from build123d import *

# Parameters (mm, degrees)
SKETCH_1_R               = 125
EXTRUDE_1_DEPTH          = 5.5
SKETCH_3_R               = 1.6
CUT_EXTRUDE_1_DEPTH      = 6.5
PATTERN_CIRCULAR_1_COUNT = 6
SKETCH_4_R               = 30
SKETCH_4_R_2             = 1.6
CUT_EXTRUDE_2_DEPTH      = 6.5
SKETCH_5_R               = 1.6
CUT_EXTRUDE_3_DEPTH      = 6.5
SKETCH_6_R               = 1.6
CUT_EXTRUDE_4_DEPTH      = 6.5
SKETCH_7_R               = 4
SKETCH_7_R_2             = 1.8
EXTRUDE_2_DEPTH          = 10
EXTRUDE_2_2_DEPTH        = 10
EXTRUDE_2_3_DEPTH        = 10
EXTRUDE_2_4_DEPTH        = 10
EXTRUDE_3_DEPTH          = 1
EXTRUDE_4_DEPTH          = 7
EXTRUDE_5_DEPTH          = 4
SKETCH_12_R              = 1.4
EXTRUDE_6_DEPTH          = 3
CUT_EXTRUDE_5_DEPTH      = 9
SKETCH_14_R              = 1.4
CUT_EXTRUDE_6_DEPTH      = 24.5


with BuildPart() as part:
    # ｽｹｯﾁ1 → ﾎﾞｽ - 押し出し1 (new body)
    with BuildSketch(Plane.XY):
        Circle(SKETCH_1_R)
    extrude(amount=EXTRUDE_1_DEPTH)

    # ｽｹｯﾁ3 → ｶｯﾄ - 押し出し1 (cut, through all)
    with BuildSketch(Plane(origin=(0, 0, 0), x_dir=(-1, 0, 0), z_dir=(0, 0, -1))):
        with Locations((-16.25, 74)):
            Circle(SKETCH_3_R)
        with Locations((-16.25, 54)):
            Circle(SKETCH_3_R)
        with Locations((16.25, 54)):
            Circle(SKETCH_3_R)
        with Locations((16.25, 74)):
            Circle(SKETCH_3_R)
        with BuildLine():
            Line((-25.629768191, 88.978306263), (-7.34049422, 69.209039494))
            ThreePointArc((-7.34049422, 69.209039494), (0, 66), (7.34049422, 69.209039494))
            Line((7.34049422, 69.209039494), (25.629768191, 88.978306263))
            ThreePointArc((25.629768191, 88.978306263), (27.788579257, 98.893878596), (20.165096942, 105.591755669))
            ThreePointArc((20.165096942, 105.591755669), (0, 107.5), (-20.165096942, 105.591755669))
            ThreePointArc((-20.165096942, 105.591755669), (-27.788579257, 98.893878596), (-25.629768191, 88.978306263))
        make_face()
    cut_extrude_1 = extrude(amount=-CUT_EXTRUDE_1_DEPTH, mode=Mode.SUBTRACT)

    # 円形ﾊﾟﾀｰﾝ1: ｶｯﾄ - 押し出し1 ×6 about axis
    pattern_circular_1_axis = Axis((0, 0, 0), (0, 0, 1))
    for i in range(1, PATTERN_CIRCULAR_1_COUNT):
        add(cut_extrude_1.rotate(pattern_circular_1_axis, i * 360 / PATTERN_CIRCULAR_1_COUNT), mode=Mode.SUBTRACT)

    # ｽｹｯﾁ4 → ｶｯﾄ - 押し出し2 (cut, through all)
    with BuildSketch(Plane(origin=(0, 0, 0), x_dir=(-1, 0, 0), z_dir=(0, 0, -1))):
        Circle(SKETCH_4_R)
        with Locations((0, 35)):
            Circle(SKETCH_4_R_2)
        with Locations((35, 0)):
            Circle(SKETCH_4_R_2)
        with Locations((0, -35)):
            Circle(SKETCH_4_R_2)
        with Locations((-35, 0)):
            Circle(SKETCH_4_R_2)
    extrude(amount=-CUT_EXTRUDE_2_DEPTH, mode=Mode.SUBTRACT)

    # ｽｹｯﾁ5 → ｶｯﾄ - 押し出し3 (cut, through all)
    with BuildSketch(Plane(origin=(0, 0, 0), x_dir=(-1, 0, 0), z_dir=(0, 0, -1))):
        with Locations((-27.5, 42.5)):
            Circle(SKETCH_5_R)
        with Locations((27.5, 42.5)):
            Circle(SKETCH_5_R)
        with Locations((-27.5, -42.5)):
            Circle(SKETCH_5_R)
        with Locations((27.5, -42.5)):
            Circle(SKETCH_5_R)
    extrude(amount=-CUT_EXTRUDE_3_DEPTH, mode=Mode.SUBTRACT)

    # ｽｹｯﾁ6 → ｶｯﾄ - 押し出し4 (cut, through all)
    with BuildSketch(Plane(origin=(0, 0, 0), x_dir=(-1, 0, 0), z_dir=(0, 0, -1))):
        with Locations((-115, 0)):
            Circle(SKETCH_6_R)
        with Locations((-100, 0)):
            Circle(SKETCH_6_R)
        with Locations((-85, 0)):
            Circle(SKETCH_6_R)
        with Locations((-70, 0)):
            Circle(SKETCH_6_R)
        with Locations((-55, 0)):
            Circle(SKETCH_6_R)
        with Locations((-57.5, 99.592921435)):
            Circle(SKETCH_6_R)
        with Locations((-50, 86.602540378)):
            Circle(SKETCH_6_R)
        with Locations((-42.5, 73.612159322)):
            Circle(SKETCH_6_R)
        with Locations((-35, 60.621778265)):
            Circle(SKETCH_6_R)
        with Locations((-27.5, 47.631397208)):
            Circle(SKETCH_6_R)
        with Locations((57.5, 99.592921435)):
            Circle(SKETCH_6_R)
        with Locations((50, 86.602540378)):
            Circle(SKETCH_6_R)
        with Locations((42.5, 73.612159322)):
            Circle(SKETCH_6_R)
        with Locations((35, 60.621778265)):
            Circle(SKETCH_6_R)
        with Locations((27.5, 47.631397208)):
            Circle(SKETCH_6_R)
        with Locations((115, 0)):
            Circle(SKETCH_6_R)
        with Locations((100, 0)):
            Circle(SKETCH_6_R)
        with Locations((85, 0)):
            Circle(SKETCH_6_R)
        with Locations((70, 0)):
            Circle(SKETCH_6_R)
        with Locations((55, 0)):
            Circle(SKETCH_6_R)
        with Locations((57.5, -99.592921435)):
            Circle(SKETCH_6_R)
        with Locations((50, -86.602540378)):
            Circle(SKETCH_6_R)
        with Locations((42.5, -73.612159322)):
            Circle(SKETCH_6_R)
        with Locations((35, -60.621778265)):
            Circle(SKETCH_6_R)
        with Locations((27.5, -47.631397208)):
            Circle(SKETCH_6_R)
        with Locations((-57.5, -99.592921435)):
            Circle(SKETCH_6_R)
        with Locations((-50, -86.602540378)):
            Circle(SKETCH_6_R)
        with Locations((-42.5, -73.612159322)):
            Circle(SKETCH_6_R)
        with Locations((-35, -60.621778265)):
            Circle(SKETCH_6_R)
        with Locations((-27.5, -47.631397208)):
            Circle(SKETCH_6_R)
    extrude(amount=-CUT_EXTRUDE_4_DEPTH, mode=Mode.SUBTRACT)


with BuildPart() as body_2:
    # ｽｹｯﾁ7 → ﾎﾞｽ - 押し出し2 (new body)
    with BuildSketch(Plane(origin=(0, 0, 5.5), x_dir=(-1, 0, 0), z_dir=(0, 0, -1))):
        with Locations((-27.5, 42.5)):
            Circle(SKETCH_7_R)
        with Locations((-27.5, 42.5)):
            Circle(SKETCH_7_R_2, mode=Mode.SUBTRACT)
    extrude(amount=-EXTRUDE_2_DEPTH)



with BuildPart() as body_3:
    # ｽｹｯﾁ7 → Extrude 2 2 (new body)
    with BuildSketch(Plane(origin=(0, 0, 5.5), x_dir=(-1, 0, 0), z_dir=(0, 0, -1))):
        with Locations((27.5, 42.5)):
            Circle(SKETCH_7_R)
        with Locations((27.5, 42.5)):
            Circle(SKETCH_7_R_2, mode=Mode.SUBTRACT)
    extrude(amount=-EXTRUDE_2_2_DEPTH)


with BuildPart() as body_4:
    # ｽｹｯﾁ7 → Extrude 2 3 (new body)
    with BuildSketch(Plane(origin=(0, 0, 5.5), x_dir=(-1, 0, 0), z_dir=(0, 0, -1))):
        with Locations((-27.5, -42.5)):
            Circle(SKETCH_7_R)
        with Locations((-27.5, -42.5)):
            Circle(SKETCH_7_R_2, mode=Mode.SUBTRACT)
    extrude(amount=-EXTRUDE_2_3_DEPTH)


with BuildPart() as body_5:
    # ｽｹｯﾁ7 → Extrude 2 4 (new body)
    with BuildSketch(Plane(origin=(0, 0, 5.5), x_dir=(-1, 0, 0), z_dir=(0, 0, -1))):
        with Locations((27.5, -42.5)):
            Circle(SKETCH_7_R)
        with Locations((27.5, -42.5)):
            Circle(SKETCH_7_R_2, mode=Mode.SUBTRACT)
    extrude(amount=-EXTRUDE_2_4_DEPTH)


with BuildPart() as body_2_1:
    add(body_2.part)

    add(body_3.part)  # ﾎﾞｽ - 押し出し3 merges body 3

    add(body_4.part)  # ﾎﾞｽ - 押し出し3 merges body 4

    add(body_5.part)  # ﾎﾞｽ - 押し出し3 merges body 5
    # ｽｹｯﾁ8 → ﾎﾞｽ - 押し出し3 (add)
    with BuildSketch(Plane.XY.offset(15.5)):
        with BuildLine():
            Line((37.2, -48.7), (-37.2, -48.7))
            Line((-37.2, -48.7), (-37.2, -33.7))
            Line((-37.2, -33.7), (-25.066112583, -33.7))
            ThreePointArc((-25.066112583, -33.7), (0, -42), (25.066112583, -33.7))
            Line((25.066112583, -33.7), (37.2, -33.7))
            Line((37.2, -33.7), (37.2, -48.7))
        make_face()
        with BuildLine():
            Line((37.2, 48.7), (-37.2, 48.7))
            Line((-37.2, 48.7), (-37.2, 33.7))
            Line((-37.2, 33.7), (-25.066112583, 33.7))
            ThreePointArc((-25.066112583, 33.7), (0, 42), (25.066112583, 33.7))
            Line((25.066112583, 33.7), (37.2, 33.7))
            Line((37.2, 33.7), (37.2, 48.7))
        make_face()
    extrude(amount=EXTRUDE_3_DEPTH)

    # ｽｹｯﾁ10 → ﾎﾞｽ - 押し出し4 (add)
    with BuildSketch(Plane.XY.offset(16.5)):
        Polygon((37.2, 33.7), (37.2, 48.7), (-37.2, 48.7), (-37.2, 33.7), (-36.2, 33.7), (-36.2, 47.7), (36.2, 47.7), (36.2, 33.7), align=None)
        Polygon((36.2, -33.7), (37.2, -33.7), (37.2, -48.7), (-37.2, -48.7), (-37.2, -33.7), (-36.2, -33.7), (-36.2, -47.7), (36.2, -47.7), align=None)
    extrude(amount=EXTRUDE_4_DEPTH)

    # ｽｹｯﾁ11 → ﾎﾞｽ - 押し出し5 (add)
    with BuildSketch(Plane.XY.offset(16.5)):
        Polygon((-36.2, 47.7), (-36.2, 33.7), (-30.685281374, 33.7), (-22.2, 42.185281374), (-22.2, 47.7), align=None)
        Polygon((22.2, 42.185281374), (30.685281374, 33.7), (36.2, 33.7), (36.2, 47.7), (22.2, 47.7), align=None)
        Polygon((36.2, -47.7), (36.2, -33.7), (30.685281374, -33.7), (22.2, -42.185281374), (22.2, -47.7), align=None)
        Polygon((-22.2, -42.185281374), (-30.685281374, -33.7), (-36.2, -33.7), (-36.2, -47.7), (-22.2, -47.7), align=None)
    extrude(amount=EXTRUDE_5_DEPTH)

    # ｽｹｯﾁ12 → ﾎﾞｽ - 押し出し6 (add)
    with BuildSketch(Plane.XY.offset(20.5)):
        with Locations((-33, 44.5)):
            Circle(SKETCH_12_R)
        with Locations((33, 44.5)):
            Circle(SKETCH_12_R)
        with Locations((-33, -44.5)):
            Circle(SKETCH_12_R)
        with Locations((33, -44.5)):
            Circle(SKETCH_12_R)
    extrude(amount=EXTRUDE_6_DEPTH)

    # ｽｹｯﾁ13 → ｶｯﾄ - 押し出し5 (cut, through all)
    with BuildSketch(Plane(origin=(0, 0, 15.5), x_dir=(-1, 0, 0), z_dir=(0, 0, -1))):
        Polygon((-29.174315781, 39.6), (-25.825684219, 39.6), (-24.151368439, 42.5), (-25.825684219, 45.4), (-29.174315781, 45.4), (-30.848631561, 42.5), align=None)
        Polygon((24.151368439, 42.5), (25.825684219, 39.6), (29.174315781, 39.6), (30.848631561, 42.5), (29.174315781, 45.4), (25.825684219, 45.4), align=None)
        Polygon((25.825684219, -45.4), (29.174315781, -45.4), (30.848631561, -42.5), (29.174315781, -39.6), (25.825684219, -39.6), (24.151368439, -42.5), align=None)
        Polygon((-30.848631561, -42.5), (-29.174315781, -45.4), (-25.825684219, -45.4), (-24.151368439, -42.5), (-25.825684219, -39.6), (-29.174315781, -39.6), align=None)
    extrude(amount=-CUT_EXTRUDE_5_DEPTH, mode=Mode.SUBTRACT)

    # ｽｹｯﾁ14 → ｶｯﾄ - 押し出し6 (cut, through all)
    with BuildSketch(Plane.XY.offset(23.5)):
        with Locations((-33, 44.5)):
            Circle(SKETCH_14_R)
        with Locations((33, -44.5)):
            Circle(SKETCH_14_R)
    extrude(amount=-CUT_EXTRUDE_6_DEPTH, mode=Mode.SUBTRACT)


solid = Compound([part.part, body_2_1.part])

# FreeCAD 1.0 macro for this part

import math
import FreeCAD as App
import Part
import Sketcher
Q = App.Units.Quantity

doc = App.newDocument("Part")
body = doc.addObject("PartDesign::Body", "Body")

# Sketch on XY plane
sketch1 = body.newObject("Sketcher::SketchObject", "Sketch")
sketch1.AttachmentSupport = (doc.getObject("XY_Plane"), [""])
sketch1.MapMode = "FlatFace"
sketch1.addGeometry(Part.Circle(App.Vector(0, 0, 0), App.Vector(0, 0, 1), 125), False)
sketch1.addConstraint(Sketcher.Constraint("Coincident", 0, 3, -1, 1))
sketch1.addConstraint(Sketcher.Constraint("Diameter", 0, Q("250 mm")))
pad1 = body.newObject("PartDesign::Pad", "Pad")
pad1.Profile = sketch1
pad1.Length = 5.5

# Sketch on XY plane
sketch2 = body.newObject("Sketcher::SketchObject", "Sketch001")
sketch2.AttachmentSupport = (doc.getObject("XY_Plane"), [""])
sketch2.MapMode = "FlatFace"
sketch2.addGeometry(Part.Circle(App.Vector(16.2, 74, 0), App.Vector(0, 0, 1), 1.6), False)
sketch2.addGeometry(Part.Circle(App.Vector(16.2, 54, 0), App.Vector(0, 0, 1), 1.6), False)
sketch2.addGeometry(Part.Circle(App.Vector(-16.2, 54, 0), App.Vector(0, 0, 1), 1.6), False)
sketch2.addGeometry(Part.Circle(App.Vector(-16.2, 74, 0), App.Vector(0, 0, 1), 1.6), False)
sketch2.addGeometry(Part.LineSegment(App.Vector(25.6, 89, 0), App.Vector(7.3, 69.2, 0)), False)
sketch2.addGeometry(Part.ArcOfCircle(Part.Circle(App.Vector(0, 76, 0), App.Vector(0, 0, 1), 10), math.radians(-137), math.radians(-43)), False)
sketch2.addGeometry(Part.LineSegment(App.Vector(-7.3, 69.2, 0), App.Vector(-25.6, 89, 0)), False)
sketch2.addGeometry(Part.ArcOfCircle(Part.Circle(App.Vector(-18.3, 95.8, 0), App.Vector(0, 0, 1), 10), math.radians(101), math.radians(223)), False)
sketch2.addGeometry(Part.ArcOfCircle(Part.Circle(App.Vector(0, 0, 0), App.Vector(0, 0, 1), 107.5), math.radians(79), math.radians(101)), False)
sketch2.addGeometry(Part.ArcOfCircle(Part.Circle(App.Vector(18.3, 95.8, 0), App.Vector(0, 0, 1), 10), math.radians(-43), math.radians(79)), False)
sketch2.addConstraint(Sketcher.Constraint("Tangent", 4, 2, 5, 2))
sketch2.addConstraint(Sketcher.Constraint("Tangent", 5, 1, 6, 1))
sketch2.addConstraint(Sketcher.Constraint("Tangent", 6, 2, 7, 2))
sketch2.addConstraint(Sketcher.Constraint("Tangent", 7, 1, 8, 2))
sketch2.addConstraint(Sketcher.Constraint("Tangent", 8, 1, 9, 2))
sketch2.addConstraint(Sketcher.Constraint("Tangent", 9, 1, 4, 1))
sketch2.addConstraint(Sketcher.Constraint("Coincident", 8, 3, -1, 1))
sketch2.addConstraint(Sketcher.Constraint("Equal", 0, 1))
sketch2.addConstraint(Sketcher.Constraint("Equal", 1, 2))
sketch2.addConstraint(Sketcher.Constraint("Equal", 2, 3))
sketch2.addConstraint(Sketcher.Constraint("Equal", 5, 7))
sketch2.addConstraint(Sketcher.Constraint("Equal", 7, 9))
sketch2.addConstraint(Sketcher.Constraint("Symmetric", 1, 3, 2, 3, -2))
sketch2.addConstraint(Sketcher.Constraint("Symmetric", 0, 3, 3, 3, -2))
sketch2.addConstraint(Sketcher.Constraint("Symmetric", 4, 2, 5, 1, -2))
sketch2.addConstraint(Sketcher.Constraint("Vertical", 0, 3, 1, 3))
sketch2.addConstraint(Sketcher.Constraint("Radius", 5, Q("10 mm")))
sketch2.addConstraint(Sketcher.Constraint("Diameter", 0, Q("3.2 mm")))
sketch2.addConstraint(Sketcher.Constraint("Radius", 8, Q("107.5 mm")))
sketch2.addConstraint(Sketcher.Constraint("DistanceY", -1, 1, 0, 3, Q("74 mm")))
sketch2.addConstraint(Sketcher.Constraint("DistanceY", -1, 1, 1, 3, Q("54 mm")))
sketch2.addConstraint(Sketcher.Constraint("DistanceY", -1, 1, 5, 3, Q("76 mm")))
sketch2.addConstraint(Sketcher.Constraint("DistanceX", 2, 3, 1, 3, Q("32.5 mm")))
sketch2.addConstraint(Sketcher.Constraint("DistanceY", -1, 1, 4, 2, Q("69.209039 mm")))
pocket1 = body.newObject("PartDesign::Pocket", "Pocket")
pocket1.Profile = sketch2
pocket1.Type = "ThroughAll"
pocket1.Reversed = True
doc.recompute()

polarpattern = body.newObject("PartDesign::PolarPattern", "PolarPattern")
polarpattern.Originals = [pocket1]
polarpattern.Axis = (doc.getObject("Z_Axis"), [""])
polarpattern.Angle = 360
polarpattern.Occurrences = 6
body.Tip = polarpattern

# Sketch on XY plane
sketch3 = body.newObject("Sketcher::SketchObject", "Sketch002")
sketch3.AttachmentSupport = (doc.getObject("XY_Plane"), [""])
sketch3.MapMode = "FlatFace"
sketch3.addGeometry(Part.Circle(App.Vector(0, 0, 0), App.Vector(0, 0, 1), 30), False)
sketch3.addGeometry(Part.Circle(App.Vector(0, 35, 0), App.Vector(0, 0, 1), 1.6), False)
sketch3.addGeometry(Part.Circle(App.Vector(-35, 0, 0), App.Vector(0, 0, 1), 1.6), False)
sketch3.addGeometry(Part.Circle(App.Vector(0, -35, 0), App.Vector(0, 0, 1), 1.6), False)
sketch3.addGeometry(Part.Circle(App.Vector(35, 0, 0), App.Vector(0, 0, 1), 1.6), False)
sketch3.addConstraint(Sketcher.Constraint("Coincident", 0, 3, -1, 1))
sketch3.addConstraint(Sketcher.Constraint("Equal", 1, 2))
sketch3.addConstraint(Sketcher.Constraint("Equal", 2, 3))
sketch3.addConstraint(Sketcher.Constraint("Equal", 3, 4))
sketch3.addConstraint(Sketcher.Constraint("Symmetric", 1, 3, 3, 3, -1, 1))
sketch3.addConstraint(Sketcher.Constraint("Symmetric", 2, 3, 4, 3, -1, 1))
sketch3.addConstraint(Sketcher.Constraint("PointOnObject", 1, 3, -2))
sketch3.addConstraint(Sketcher.Constraint("PointOnObject", 2, 3, -1))
sketch3.addConstraint(Sketcher.Constraint("Diameter", 0, Q("60 mm")))
sketch3.addConstraint(Sketcher.Constraint("Diameter", 1, Q("3.2 mm")))
sketch3.addConstraint(Sketcher.Constraint("DistanceY", -1, 1, 1, 3, Q("35 mm")))
sketch3.addConstraint(Sketcher.Constraint("DistanceX", 2, 3, -1, 1, Q("35 mm")))
pocket2 = body.newObject("PartDesign::Pocket", "Pocket001")
pocket2.Profile = sketch3
pocket2.Type = "ThroughAll"
pocket2.Reversed = True

# Sketch on XY plane
sketch4 = body.newObject("Sketcher::SketchObject", "Sketch003")
sketch4.AttachmentSupport = (doc.getObject("XY_Plane"), [""])
sketch4.MapMode = "FlatFace"
sketch4.addGeometry(Part.Circle(App.Vector(27.5, 42.5, 0), App.Vector(0, 0, 1), 1.6), False)
sketch4.addGeometry(Part.Circle(App.Vector(-27.5, 42.5, 0), App.Vector(0, 0, 1), 1.6), False)
sketch4.addGeometry(Part.Circle(App.Vector(27.5, -42.5, 0), App.Vector(0, 0, 1), 1.6), False)
sketch4.addGeometry(Part.Circle(App.Vector(-27.5, -42.5, 0), App.Vector(0, 0, 1), 1.6), False)
sketch4.addConstraint(Sketcher.Constraint("Equal", 0, 1))
sketch4.addConstraint(Sketcher.Constraint("Equal", 1, 2))
sketch4.addConstraint(Sketcher.Constraint("Equal", 2, 3))
sketch4.addConstraint(Sketcher.Constraint("Symmetric", 1, 3, 2, 3, -1, 1))
sketch4.addConstraint(Sketcher.Constraint("Symmetric", 0, 3, 3, 3, -1, 1))
sketch4.addConstraint(Sketcher.Constraint("Symmetric", 0, 3, 1, 3, -2))
sketch4.addConstraint(Sketcher.Constraint("Diameter", 0, Q("3.2 mm")))
sketch4.addConstraint(Sketcher.Constraint("DistanceX", 1, 3, 0, 3, Q("55 mm")))
sketch4.addConstraint(Sketcher.Constraint("DistanceY", 2, 3, 0, 3, Q("85 mm")))
pocket3 = body.newObject("PartDesign::Pocket", "Pocket002")
pocket3.Profile = sketch4
pocket3.Type = "ThroughAll"
pocket3.Reversed = True

# Sketch on XY plane
sketch5 = body.newObject("Sketcher::SketchObject", "Sketch004")
sketch5.AttachmentSupport = (doc.getObject("XY_Plane"), [""])
sketch5.MapMode = "FlatFace"
sketch5.addGeometry(Part.Circle(App.Vector(115, 0, 0), App.Vector(0, 0, 1), 1.6), False)
sketch5.addGeometry(Part.Circle(App.Vector(100, 0, 0), App.Vector(0, 0, 1), 1.6), False)
sketch5.addGeometry(Part.Circle(App.Vector(85, 0, 0), App.Vector(0, 0, 1), 1.6), False)
sketch5.addGeometry(Part.Circle(App.Vector(70, 0, 0), App.Vector(0, 0, 1), 1.6), False)
sketch5.addGeometry(Part.Circle(App.Vector(55, 0, 0), App.Vector(0, 0, 1), 1.6), False)
sketch5.addGeometry(Part.Circle(App.Vector(57.5, 99.6, 0), App.Vector(0, 0, 1), 1.6), False)
sketch5.addGeometry(Part.Circle(App.Vector(50, 86.6, 0), App.Vector(0, 0, 1), 1.6), False)
sketch5.addGeometry(Part.Circle(App.Vector(42.5, 73.6, 0), App.Vector(0, 0, 1), 1.6), False)
sketch5.addGeometry(Part.Circle(App.Vector(35, 60.6, 0), App.Vector(0, 0, 1), 1.6), False)
sketch5.addGeometry(Part.Circle(App.Vector(27.5, 47.6, 0), App.Vector(0, 0, 1), 1.6), False)
sketch5.addGeometry(Part.Circle(App.Vector(-57.5, 99.6, 0), App.Vector(0, 0, 1), 1.6), False)
sketch5.addGeometry(Part.Circle(App.Vector(-50, 86.6, 0), App.Vector(0, 0, 1), 1.6), False)
sketch5.addGeometry(Part.Circle(App.Vector(-42.5, 73.6, 0), App.Vector(0, 0, 1), 1.6), False)
sketch5.addGeometry(Part.Circle(App.Vector(-35, 60.6, 0), App.Vector(0, 0, 1), 1.6), False)
sketch5.addGeometry(Part.Circle(App.Vector(-27.5, 47.6, 0), App.Vector(0, 0, 1), 1.6), False)
sketch5.addGeometry(Part.Circle(App.Vector(-115, 0, 0), App.Vector(0, 0, 1), 1.6), False)
sketch5.addGeometry(Part.Circle(App.Vector(-100, 0, 0), App.Vector(0, 0, 1), 1.6), False)
sketch5.addGeometry(Part.Circle(App.Vector(-85, 0, 0), App.Vector(0, 0, 1), 1.6), False)
sketch5.addGeometry(Part.Circle(App.Vector(-70, 0, 0), App.Vector(0, 0, 1), 1.6), False)
sketch5.addGeometry(Part.Circle(App.Vector(-55, 0, 0), App.Vector(0, 0, 1), 1.6), False)
sketch5.addGeometry(Part.Circle(App.Vector(-57.5, -99.6, 0), App.Vector(0, 0, 1), 1.6), False)
sketch5.addGeometry(Part.Circle(App.Vector(-50, -86.6, 0), App.Vector(0, 0, 1), 1.6), False)
sketch5.addGeometry(Part.Circle(App.Vector(-42.5, -73.6, 0), App.Vector(0, 0, 1), 1.6), False)
sketch5.addGeometry(Part.Circle(App.Vector(-35, -60.6, 0), App.Vector(0, 0, 1), 1.6), False)
sketch5.addGeometry(Part.Circle(App.Vector(-27.5, -47.6, 0), App.Vector(0, 0, 1), 1.6), False)
sketch5.addGeometry(Part.Circle(App.Vector(57.5, -99.6, 0), App.Vector(0, 0, 1), 1.6), False)
sketch5.addGeometry(Part.Circle(App.Vector(50, -86.6, 0), App.Vector(0, 0, 1), 1.6), False)
sketch5.addGeometry(Part.Circle(App.Vector(42.5, -73.6, 0), App.Vector(0, 0, 1), 1.6), False)
sketch5.addGeometry(Part.Circle(App.Vector(35, -60.6, 0), App.Vector(0, 0, 1), 1.6), False)
sketch5.addGeometry(Part.Circle(App.Vector(27.5, -47.6, 0), App.Vector(0, 0, 1), 1.6), False)
sketch5.addConstraint(Sketcher.Constraint("Equal", 0, 1))
sketch5.addConstraint(Sketcher.Constraint("Equal", 1, 2))
sketch5.addConstraint(Sketcher.Constraint("Equal", 2, 3))
sketch5.addConstraint(Sketcher.Constraint("Equal", 3, 4))
sketch5.addConstraint(Sketcher.Constraint("Equal", 4, 5))
sketch5.addConstraint(Sketcher.Constraint("Equal", 5, 6))
sketch5.addConstraint(Sketcher.Constraint("Equal", 6, 7))
sketch5.addConstraint(Sketcher.Constraint("Equal", 7, 8))
sketch5.addConstraint(Sketcher.Constraint("Equal", 8, 9))
sketch5.addConstraint(Sketcher.Constraint("Equal", 9, 10))
sketch5.addConstraint(Sketcher.Constraint("Equal", 10, 11))
sketch5.addConstraint(Sketcher.Constraint("Equal", 11, 12))
sketch5.addConstraint(Sketcher.Constraint("Equal", 12, 13))
sketch5.addConstraint(Sketcher.Constraint("Equal", 13, 14))
sketch5.addConstraint(Sketcher.Constraint("Equal", 14, 15))
sketch5.addConstraint(Sketcher.Constraint("Equal", 15, 16))
sketch5.addConstraint(Sketcher.Constraint("Equal", 16, 17))
sketch5.addConstraint(Sketcher.Constraint("Equal", 17, 18))
sketch5.addConstraint(Sketcher.Constraint("Equal", 18, 19))
sketch5.addConstraint(Sketcher.Constraint("Equal", 19, 20))
sketch5.addConstraint(Sketcher.Constraint("Equal", 20, 21))
sketch5.addConstraint(Sketcher.Constraint("Equal", 21, 22))
sketch5.addConstraint(Sketcher.Constraint("Equal", 22, 23))
sketch5.addConstraint(Sketcher.Constraint("Equal", 23, 24))
sketch5.addConstraint(Sketcher.Constraint("Equal", 24, 25))
sketch5.addConstraint(Sketcher.Constraint("Equal", 25, 26))
sketch5.addConstraint(Sketcher.Constraint("Equal", 26, 27))
sketch5.addConstraint(Sketcher.Constraint("Equal", 27, 28))
sketch5.addConstraint(Sketcher.Constraint("Equal", 28, 29))
sketch5.addConstraint(Sketcher.Constraint("Symmetric", 0, 3, 15, 3, -1, 1))
sketch5.addConstraint(Sketcher.Constraint("Symmetric", 1, 3, 16, 3, -1, 1))
sketch5.addConstraint(Sketcher.Constraint("Symmetric", 2, 3, 17, 3, -1, 1))
sketch5.addConstraint(Sketcher.Constraint("Symmetric", 3, 3, 18, 3, -1, 1))
sketch5.addConstraint(Sketcher.Constraint("Symmetric", 4, 3, 19, 3, -1, 1))
sketch5.addConstraint(Sketcher.Constraint("Symmetric", 5, 3, 20, 3, -1, 1))
sketch5.addConstraint(Sketcher.Constraint("Symmetric", 6, 3, 21, 3, -1, 1))
sketch5.addConstraint(Sketcher.Constraint("Symmetric", 7, 3, 22, 3, -1, 1))
sketch5.addConstraint(Sketcher.Constraint("Symmetric", 8, 3, 23, 3, -1, 1))
sketch5.addConstraint(Sketcher.Constraint("Symmetric", 9, 3, 24, 3, -1, 1))
sketch5.addConstraint(Sketcher.Constraint("Symmetric", 10, 3, 25, 3, -1, 1))
sketch5.addConstraint(Sketcher.Constraint("Symmetric", 11, 3, 26, 3, -1, 1))
sketch5.addConstraint(Sketcher.Constraint("Symmetric", 12, 3, 27, 3, -1, 1))
sketch5.addConstraint(Sketcher.Constraint("Symmetric", 13, 3, 28, 3, -1, 1))
sketch5.addConstraint(Sketcher.Constraint("Symmetric", 14, 3, 29, 3, -1, 1))
sketch5.addConstraint(Sketcher.Constraint("Symmetric", 5, 3, 10, 3, -2))
sketch5.addConstraint(Sketcher.Constraint("Symmetric", 6, 3, 11, 3, -2))
sketch5.addConstraint(Sketcher.Constraint("Symmetric", 7, 3, 12, 3, -2))
sketch5.addConstraint(Sketcher.Constraint("Symmetric", 8, 3, 13, 3, -2))
sketch5.addConstraint(Sketcher.Constraint("Symmetric", 9, 3, 14, 3, -2))
sketch5.addConstraint(Sketcher.Constraint("PointOnObject", 0, 3, -1))
sketch5.addConstraint(Sketcher.Constraint("PointOnObject", 1, 3, -1))
sketch5.addConstraint(Sketcher.Constraint("PointOnObject", 2, 3, -1))
sketch5.addConstraint(Sketcher.Constraint("PointOnObject", 3, 3, -1))
sketch5.addConstraint(Sketcher.Constraint("PointOnObject", 4, 3, -1))
sketch5.addConstraint(Sketcher.Constraint("Diameter", 0, Q("3.2 mm")))
sketch5.addConstraint(Sketcher.Constraint("DistanceX", -1, 1, 0, 3, Q("115 mm")))
sketch5.addConstraint(Sketcher.Constraint("DistanceX", -1, 1, 1, 3, Q("100 mm")))
sketch5.addConstraint(Sketcher.Constraint("DistanceX", -1, 1, 2, 3, Q("85 mm")))
sketch5.addConstraint(Sketcher.Constraint("DistanceX", -1, 1, 3, 3, Q("70 mm")))
sketch5.addConstraint(Sketcher.Constraint("DistanceX", -1, 1, 4, 3, Q("55 mm")))
sketch5.addConstraint(Sketcher.Constraint("DistanceX", -1, 1, 6, 3, Q("50 mm")))
sketch5.addConstraint(Sketcher.Constraint("DistanceX", -1, 1, 8, 3, Q("35 mm")))
sketch5.addConstraint(Sketcher.Constraint("DistanceX", 7, 3, 5, 3, Q("15 mm")))
sketch5.addConstraint(Sketcher.Constraint("DistanceX", 9, 3, 7, 3, Q("15 mm")))
sketch5.addConstraint(Sketcher.Constraint("DistanceX", 10, 3, 9, 3, Q("85 mm")))
sketch5.addConstraint(Sketcher.Constraint("DistanceY", -1, 1, 5, 3, Q("99.592921 mm")))
sketch5.addConstraint(Sketcher.Constraint("DistanceY", -1, 1, 6, 3, Q("86.60254 mm")))
sketch5.addConstraint(Sketcher.Constraint("DistanceY", -1, 1, 7, 3, Q("73.612159 mm")))
sketch5.addConstraint(Sketcher.Constraint("DistanceY", -1, 1, 8, 3, Q("60.621778 mm")))
sketch5.addConstraint(Sketcher.Constraint("DistanceY", 9, 3, 8, 3, Q("12.990381 mm")))
pocket4 = body.newObject("PartDesign::Pocket", "Pocket003")
pocket4.Profile = sketch5
pocket4.Type = "ThroughAll"
pocket4.Reversed = True
body2 = doc.addObject("PartDesign::Body", "Body001")

# Sketch on XY plane
sketch6 = body2.newObject("Sketcher::SketchObject", "Sketch005")
sketch6.AttachmentSupport = (doc.getObject("XY_Plane001"), [""])
sketch6.MapMode = "FlatFace"
sketch6.AttachmentOffset = App.Placement(App.Vector(0, 0, 5.5), App.Rotation())
sketch6.addGeometry(Part.Circle(App.Vector(27.5, 42.5, 0), App.Vector(0, 0, 1), 4), False)
sketch6.addGeometry(Part.Circle(App.Vector(27.5, 42.5, 0), App.Vector(0, 0, 1), 1.8), False)
sketch6.addConstraint(Sketcher.Constraint("Coincident", 1, 3, 0, 3))
sketch6.addConstraint(Sketcher.Constraint("Diameter", 0, Q("8 mm")))
sketch6.addConstraint(Sketcher.Constraint("Diameter", 1, Q("3.6 mm")))
sketch6.addConstraint(Sketcher.Constraint("DistanceX", -1, 1, 0, 3, Q("27.5 mm")))
sketch6.addConstraint(Sketcher.Constraint("DistanceY", -1, 1, 0, 3, Q("42.5 mm")))
pad2 = body2.newObject("PartDesign::Pad", "Pad001")
pad2.Profile = sketch6
pad2.Length = 10
body3 = doc.addObject("PartDesign::Body", "Body002")

# Sketch on XY plane
sketch7 = body3.newObject("Sketcher::SketchObject", "Sketch006")
sketch7.AttachmentSupport = (doc.getObject("XY_Plane002"), [""])
sketch7.MapMode = "FlatFace"
sketch7.AttachmentOffset = App.Placement(App.Vector(0, 0, 5.5), App.Rotation())
sketch7.addGeometry(Part.Circle(App.Vector(-27.5, 42.5, 0), App.Vector(0, 0, 1), 4), False)
sketch7.addGeometry(Part.Circle(App.Vector(-27.5, 42.5, 0), App.Vector(0, 0, 1), 1.8), False)
sketch7.addConstraint(Sketcher.Constraint("Coincident", 1, 3, 0, 3))
sketch7.addConstraint(Sketcher.Constraint("Diameter", 0, Q("8 mm")))
sketch7.addConstraint(Sketcher.Constraint("Diameter", 1, Q("3.6 mm")))
sketch7.addConstraint(Sketcher.Constraint("DistanceX", 0, 3, -1, 1, Q("27.5 mm")))
sketch7.addConstraint(Sketcher.Constraint("DistanceY", -1, 1, 0, 3, Q("42.5 mm")))
pad3 = body3.newObject("PartDesign::Pad", "Pad002")
pad3.Profile = sketch7
pad3.Length = 10
body4 = doc.addObject("PartDesign::Body", "Body003")

# Sketch on XY plane
sketch8 = body4.newObject("Sketcher::SketchObject", "Sketch007")
sketch8.AttachmentSupport = (doc.getObject("XY_Plane003"), [""])
sketch8.MapMode = "FlatFace"
sketch8.AttachmentOffset = App.Placement(App.Vector(0, 0, 5.5), App.Rotation())
sketch8.addGeometry(Part.Circle(App.Vector(27.5, -42.5, 0), App.Vector(0, 0, 1), 4), False)
sketch8.addGeometry(Part.Circle(App.Vector(27.5, -42.5, 0), App.Vector(0, 0, 1), 1.8), False)
sketch8.addConstraint(Sketcher.Constraint("Coincident", 1, 3, 0, 3))
sketch8.addConstraint(Sketcher.Constraint("Diameter", 0, Q("8 mm")))
sketch8.addConstraint(Sketcher.Constraint("Diameter", 1, Q("3.6 mm")))
sketch8.addConstraint(Sketcher.Constraint("DistanceX", -1, 1, 0, 3, Q("27.5 mm")))
sketch8.addConstraint(Sketcher.Constraint("DistanceY", 0, 3, -1, 1, Q("42.5 mm")))
pad4 = body4.newObject("PartDesign::Pad", "Pad003")
pad4.Profile = sketch8
pad4.Length = 10
body5 = doc.addObject("PartDesign::Body", "Body004")

# Sketch on XY plane
sketch9 = body5.newObject("Sketcher::SketchObject", "Sketch008")
sketch9.AttachmentSupport = (doc.getObject("XY_Plane004"), [""])
sketch9.MapMode = "FlatFace"
sketch9.AttachmentOffset = App.Placement(App.Vector(0, 0, 5.5), App.Rotation())
sketch9.addGeometry(Part.Circle(App.Vector(-27.5, -42.5, 0), App.Vector(0, 0, 1), 4), False)
sketch9.addGeometry(Part.Circle(App.Vector(-27.5, -42.5, 0), App.Vector(0, 0, 1), 1.8), False)
sketch9.addConstraint(Sketcher.Constraint("Coincident", 1, 3, 0, 3))
sketch9.addConstraint(Sketcher.Constraint("Diameter", 0, Q("8 mm")))
sketch9.addConstraint(Sketcher.Constraint("Diameter", 1, Q("3.6 mm")))
sketch9.addConstraint(Sketcher.Constraint("DistanceX", 0, 3, -1, 1, Q("27.5 mm")))
sketch9.addConstraint(Sketcher.Constraint("DistanceY", 0, 3, -1, 1, Q("42.5 mm")))
pad5 = body5.newObject("PartDesign::Pad", "Pad004")
pad5.Profile = sketch9
pad5.Length = 10
body2.AllowCompound = True
doc.recompute()

boolean = body2.newObject("PartDesign::Boolean", "Boolean")
boolean.Type = "Fuse"
boolean.addObjects([body3])
doc.recompute()

boolean2 = body2.newObject("PartDesign::Boolean", "Boolean001")
boolean2.Type = "Fuse"
boolean2.addObjects([body4])
doc.recompute()

boolean3 = body2.newObject("PartDesign::Boolean", "Boolean002")
boolean3.Type = "Fuse"
boolean3.addObjects([body5])

# Sketch on XY plane
sketch10 = body2.newObject("Sketcher::SketchObject", "Sketch009")
sketch10.AttachmentSupport = (doc.getObject("XY_Plane001"), [""])
sketch10.MapMode = "FlatFace"
sketch10.AttachmentOffset = App.Placement(App.Vector(0, 0, 15.5), App.Rotation())
sketch10.addGeometry(Part.LineSegment(App.Vector(-37, -49, 0), App.Vector(37, -49, 0)), False)
sketch10.addGeometry(Part.LineSegment(App.Vector(37, -49, 0), App.Vector(37, -34, 0)), False)
sketch10.addGeometry(Part.LineSegment(App.Vector(37, -34, 0), App.Vector(25, -34, 0)), False)
sketch10.addGeometry(Part.ArcOfCircle(Part.Circle(App.Vector(0, 0, 0), App.Vector(0, 0, 1), 42), math.radians(-127), math.radians(-53)), False)
sketch10.addGeometry(Part.LineSegment(App.Vector(-25, -34, 0), App.Vector(-37, -34, 0)), False)
sketch10.addGeometry(Part.LineSegment(App.Vector(-37, -34, 0), App.Vector(-37, -49, 0)), False)
sketch10.addGeometry(Part.LineSegment(App.Vector(37, 49, 0), App.Vector(-37, 49, 0)), False)
sketch10.addGeometry(Part.LineSegment(App.Vector(-37, 49, 0), App.Vector(-37, 34, 0)), False)
sketch10.addGeometry(Part.LineSegment(App.Vector(-37, 34, 0), App.Vector(-25, 34, 0)), False)
sketch10.addGeometry(Part.ArcOfCircle(Part.Circle(App.Vector(0, 0, 0), App.Vector(0, 0, 1), 42), math.radians(53), math.radians(127)), False)
sketch10.addGeometry(Part.LineSegment(App.Vector(25, 34, 0), App.Vector(37, 34, 0)), False)
sketch10.addGeometry(Part.LineSegment(App.Vector(37, 34, 0), App.Vector(37, 49, 0)), False)
sketch10.addConstraint(Sketcher.Constraint("Coincident", 0, 2, 1, 1))
sketch10.addConstraint(Sketcher.Constraint("Coincident", 1, 2, 2, 1))
sketch10.addConstraint(Sketcher.Constraint("Coincident", 2, 2, 3, 2))
sketch10.addConstraint(Sketcher.Constraint("Coincident", 3, 1, 4, 1))
sketch10.addConstraint(Sketcher.Constraint("Coincident", 4, 2, 5, 1))
sketch10.addConstraint(Sketcher.Constraint("Coincident", 5, 2, 0, 1))
sketch10.addConstraint(Sketcher.Constraint("Coincident", 6, 2, 7, 1))
sketch10.addConstraint(Sketcher.Constraint("Coincident", 7, 2, 8, 1))
sketch10.addConstraint(Sketcher.Constraint("Coincident", 8, 2, 9, 2))
sketch10.addConstraint(Sketcher.Constraint("Coincident", 9, 1, 10, 1))
sketch10.addConstraint(Sketcher.Constraint("Coincident", 10, 2, 11, 1))
sketch10.addConstraint(Sketcher.Constraint("Coincident", 11, 2, 6, 1))
sketch10.addConstraint(Sketcher.Constraint("Horizontal", 0))
sketch10.addConstraint(Sketcher.Constraint("Vertical", 1))
sketch10.addConstraint(Sketcher.Constraint("Horizontal", 2))
sketch10.addConstraint(Sketcher.Constraint("Horizontal", 4))
sketch10.addConstraint(Sketcher.Constraint("Vertical", 5))
sketch10.addConstraint(Sketcher.Constraint("Horizontal", 6))
sketch10.addConstraint(Sketcher.Constraint("Vertical", 7))
sketch10.addConstraint(Sketcher.Constraint("Horizontal", 8))
sketch10.addConstraint(Sketcher.Constraint("Horizontal", 10))
sketch10.addConstraint(Sketcher.Constraint("Vertical", 11))
sketch10.addConstraint(Sketcher.Constraint("Coincident", 3, 3, -1, 1))
sketch10.addConstraint(Sketcher.Constraint("Coincident", 9, 3, -1, 1))
sketch10.addConstraint(Sketcher.Constraint("Equal", 3, 9))
sketch10.addConstraint(Sketcher.Constraint("Symmetric", 0, 2, 6, 2, -1, 1))
sketch10.addConstraint(Sketcher.Constraint("Symmetric", 4, 2, 10, 2, -1, 1))
sketch10.addConstraint(Sketcher.Constraint("Symmetric", 1, 2, 4, 2, -2))
sketch10.addConstraint(Sketcher.Constraint("Horizontal", 8, 2, 9, 1))
sketch10.addConstraint(Sketcher.Constraint("Radius", 3, Q("42 mm")))
sketch10.addConstraint(Sketcher.Constraint("DistanceY", 1, 1, 1, 2, Q("15 mm")))
sketch10.addConstraint(Sketcher.Constraint("DistanceX", 0, 1, 0, 2, Q("74.4 mm")))
sketch10.addConstraint(Sketcher.Constraint("DistanceY", 0, 2, -1, 1, Q("48.7 mm")))
pad6 = body2.newObject("PartDesign::Pad", "Pad005")
pad6.Profile = sketch10
pad6.Length = 1

# Sketch on XY plane
sketch11 = body2.newObject("Sketcher::SketchObject", "Sketch010")
sketch11.AttachmentSupport = (doc.getObject("XY_Plane001"), [""])
sketch11.MapMode = "FlatFace"
sketch11.AttachmentOffset = App.Placement(App.Vector(0, 0, 16.5), App.Rotation())
sketch11.addGeometry(Part.LineSegment(App.Vector(37.2, 33.7, 0), App.Vector(37.2, 48.7, 0)), False)
sketch11.addGeometry(Part.LineSegment(App.Vector(37.2, 48.7, 0), App.Vector(-37.2, 48.7, 0)), False)
sketch11.addGeometry(Part.LineSegment(App.Vector(-37.2, 48.7, 0), App.Vector(-37.2, 33.7, 0)), False)
sketch11.addGeometry(Part.LineSegment(App.Vector(-37.2, 33.7, 0), App.Vector(-36.2, 33.7, 0)), False)
sketch11.addGeometry(Part.LineSegment(App.Vector(-36.2, 33.7, 0), App.Vector(-36.2, 47.7, 0)), False)
sketch11.addGeometry(Part.LineSegment(App.Vector(-36.2, 47.7, 0), App.Vector(36.2, 47.7, 0)), False)
sketch11.addGeometry(Part.LineSegment(App.Vector(36.2, 47.7, 0), App.Vector(36.2, 33.7, 0)), False)
sketch11.addGeometry(Part.LineSegment(App.Vector(36.2, 33.7, 0), App.Vector(37.2, 33.7, 0)), False)
sketch11.addGeometry(Part.LineSegment(App.Vector(37.2, -33.7, 0), App.Vector(36.2, -33.7, 0)), False)
sketch11.addGeometry(Part.LineSegment(App.Vector(36.2, -33.7, 0), App.Vector(36.2, -47.7, 0)), False)
sketch11.addGeometry(Part.LineSegment(App.Vector(36.2, -47.7, 0), App.Vector(-36.2, -47.7, 0)), False)
sketch11.addGeometry(Part.LineSegment(App.Vector(-36.2, -47.7, 0), App.Vector(-36.2, -33.7, 0)), False)
sketch11.addGeometry(Part.LineSegment(App.Vector(-36.2, -33.7, 0), App.Vector(-37.2, -33.7, 0)), False)
sketch11.addGeometry(Part.LineSegment(App.Vector(-37.2, -33.7, 0), App.Vector(-37.2, -48.7, 0)), False)
sketch11.addGeometry(Part.LineSegment(App.Vector(-37.2, -48.7, 0), App.Vector(37.2, -48.7, 0)), False)
sketch11.addGeometry(Part.LineSegment(App.Vector(37.2, -48.7, 0), App.Vector(37.2, -33.7, 0)), False)
sketch11.addConstraint(Sketcher.Constraint("Coincident", 0, 2, 1, 1))
sketch11.addConstraint(Sketcher.Constraint("Coincident", 1, 2, 2, 1))
sketch11.addConstraint(Sketcher.Constraint("Coincident", 2, 2, 3, 1))
sketch11.addConstraint(Sketcher.Constraint("Coincident", 3, 2, 4, 1))
sketch11.addConstraint(Sketcher.Constraint("Coincident", 4, 2, 5, 1))
sketch11.addConstraint(Sketcher.Constraint("Coincident", 5, 2, 6, 1))
sketch11.addConstraint(Sketcher.Constraint("Coincident", 6, 2, 7, 1))
sketch11.addConstraint(Sketcher.Constraint("Coincident", 7, 2, 0, 1))
sketch11.addConstraint(Sketcher.Constraint("Coincident", 8, 2, 9, 1))
sketch11.addConstraint(Sketcher.Constraint("Coincident", 9, 2, 10, 1))
sketch11.addConstraint(Sketcher.Constraint("Coincident", 10, 2, 11, 1))
sketch11.addConstraint(Sketcher.Constraint("Coincident", 11, 2, 12, 1))
sketch11.addConstraint(Sketcher.Constraint("Coincident", 12, 2, 13, 1))
sketch11.addConstraint(Sketcher.Constraint("Coincident", 13, 2, 14, 1))
sketch11.addConstraint(Sketcher.Constraint("Coincident", 14, 2, 15, 1))
sketch11.addConstraint(Sketcher.Constraint("Coincident", 15, 2, 8, 1))
sketch11.addConstraint(Sketcher.Constraint("Vertical", 0))
sketch11.addConstraint(Sketcher.Constraint("Horizontal", 1))
sketch11.addConstraint(Sketcher.Constraint("Vertical", 2))
sketch11.addConstraint(Sketcher.Constraint("Horizontal", 3))
sketch11.addConstraint(Sketcher.Constraint("Vertical", 4))
sketch11.addConstraint(Sketcher.Constraint("Horizontal", 5))
sketch11.addConstraint(Sketcher.Constraint("Vertical", 6))
sketch11.addConstraint(Sketcher.Constraint("Horizontal", 7))
sketch11.addConstraint(Sketcher.Constraint("Horizontal", 8))
sketch11.addConstraint(Sketcher.Constraint("Vertical", 9))
sketch11.addConstraint(Sketcher.Constraint("Horizontal", 10))
sketch11.addConstraint(Sketcher.Constraint("Vertical", 11))
sketch11.addConstraint(Sketcher.Constraint("Horizontal", 12))
sketch11.addConstraint(Sketcher.Constraint("Vertical", 13))
sketch11.addConstraint(Sketcher.Constraint("Horizontal", 14))
sketch11.addConstraint(Sketcher.Constraint("Vertical", 15))
sketch11.addConstraint(Sketcher.Constraint("Symmetric", 3, 2, 8, 2, -1, 1))
sketch11.addConstraint(Sketcher.Constraint("Symmetric", 5, 2, 10, 2, -1, 1))
sketch11.addConstraint(Sketcher.Constraint("Symmetric", 7, 2, 12, 2, -1, 1))
sketch11.addConstraint(Sketcher.Constraint("Symmetric", 1, 2, 14, 2, -1, 1))
sketch11.addConstraint(Sketcher.Constraint("Symmetric", 3, 2, 6, 2, -2))
sketch11.addConstraint(Sketcher.Constraint("Vertical", 2, 2, 12, 2))
sketch11.addConstraint(Sketcher.Constraint("DistanceX", 3, 1, 3, 2, Q("1 mm")))
sketch11.addConstraint(Sketcher.Constraint("DistanceY", 0, 1, 0, 2, Q("15 mm")))
sketch11.addConstraint(Sketcher.Constraint("DistanceY", 4, 1, 4, 2, Q("14 mm")))
sketch11.addConstraint(Sketcher.Constraint("DistanceX", 1, 2, 1, 1, Q("74.4 mm")))
sketch11.addConstraint(Sketcher.Constraint("DistanceY", -1, 1, 0, 2, Q("48.7 mm")))
pad7 = body2.newObject("PartDesign::Pad", "Pad006")
pad7.Profile = sketch11
pad7.Length = 7

# Sketch on XY plane
sketch12 = body2.newObject("Sketcher::SketchObject", "Sketch011")
sketch12.AttachmentSupport = (doc.getObject("XY_Plane001"), [""])
sketch12.MapMode = "FlatFace"
sketch12.AttachmentOffset = App.Placement(App.Vector(0, 0, 16.5), App.Rotation())
sketch12.addGeometry(Part.LineSegment(App.Vector(-36, 48, 0), App.Vector(-36, 34, 0)), False)
sketch12.addGeometry(Part.LineSegment(App.Vector(-36, 34, 0), App.Vector(-31, 34, 0)), False)
sketch12.addGeometry(Part.LineSegment(App.Vector(-31, 34, 0), App.Vector(-22, 42, 0)), False)
sketch12.addGeometry(Part.LineSegment(App.Vector(-22, 42, 0), App.Vector(-22, 48, 0)), False)
sketch12.addGeometry(Part.LineSegment(App.Vector(-22, 48, 0), App.Vector(-36, 48, 0)), False)
sketch12.addGeometry(Part.LineSegment(App.Vector(22, 42, 0), App.Vector(31, 34, 0)), False)
sketch12.addGeometry(Part.LineSegment(App.Vector(31, 34, 0), App.Vector(36, 34, 0)), False)
sketch12.addGeometry(Part.LineSegment(App.Vector(36, 34, 0), App.Vector(36, 48, 0)), False)
sketch12.addGeometry(Part.LineSegment(App.Vector(36, 48, 0), App.Vector(22, 48, 0)), False)
sketch12.addGeometry(Part.LineSegment(App.Vector(22, 48, 0), App.Vector(22, 42, 0)), False)
sketch12.addGeometry(Part.LineSegment(App.Vector(36, -48, 0), App.Vector(36, -34, 0)), False)
sketch12.addGeometry(Part.LineSegment(App.Vector(36, -34, 0), App.Vector(31, -34, 0)), False)
sketch12.addGeometry(Part.LineSegment(App.Vector(31, -34, 0), App.Vector(22, -42, 0)), False)
sketch12.addGeometry(Part.LineSegment(App.Vector(22, -42, 0), App.Vector(22, -48, 0)), False)
sketch12.addGeometry(Part.LineSegment(App.Vector(22, -48, 0), App.Vector(36, -48, 0)), False)
sketch12.addGeometry(Part.LineSegment(App.Vector(-22, -42, 0), App.Vector(-31, -34, 0)), False)
sketch12.addGeometry(Part.LineSegment(App.Vector(-31, -34, 0), App.Vector(-36, -34, 0)), False)
sketch12.addGeometry(Part.LineSegment(App.Vector(-36, -34, 0), App.Vector(-36, -48, 0)), False)
sketch12.addGeometry(Part.LineSegment(App.Vector(-36, -48, 0), App.Vector(-22, -48, 0)), False)
sketch12.addGeometry(Part.LineSegment(App.Vector(-22, -48, 0), App.Vector(-22, -42, 0)), False)
sketch12.addConstraint(Sketcher.Constraint("Coincident", 0, 2, 1, 1))
sketch12.addConstraint(Sketcher.Constraint("Coincident", 1, 2, 2, 1))
sketch12.addConstraint(Sketcher.Constraint("Coincident", 2, 2, 3, 1))
sketch12.addConstraint(Sketcher.Constraint("Coincident", 3, 2, 4, 1))
sketch12.addConstraint(Sketcher.Constraint("Coincident", 4, 2, 0, 1))
sketch12.addConstraint(Sketcher.Constraint("Coincident", 5, 2, 6, 1))
sketch12.addConstraint(Sketcher.Constraint("Coincident", 6, 2, 7, 1))
sketch12.addConstraint(Sketcher.Constraint("Coincident", 7, 2, 8, 1))
sketch12.addConstraint(Sketcher.Constraint("Coincident", 8, 2, 9, 1))
sketch12.addConstraint(Sketcher.Constraint("Coincident", 9, 2, 5, 1))
sketch12.addConstraint(Sketcher.Constraint("Coincident", 10, 2, 11, 1))
sketch12.addConstraint(Sketcher.Constraint("Coincident", 11, 2, 12, 1))
sketch12.addConstraint(Sketcher.Constraint("Coincident", 12, 2, 13, 1))
sketch12.addConstraint(Sketcher.Constraint("Coincident", 13, 2, 14, 1))
sketch12.addConstraint(Sketcher.Constraint("Coincident", 14, 2, 10, 1))
sketch12.addConstraint(Sketcher.Constraint("Coincident", 15, 2, 16, 1))
sketch12.addConstraint(Sketcher.Constraint("Coincident", 16, 2, 17, 1))
sketch12.addConstraint(Sketcher.Constraint("Coincident", 17, 2, 18, 1))
sketch12.addConstraint(Sketcher.Constraint("Coincident", 18, 2, 19, 1))
sketch12.addConstraint(Sketcher.Constraint("Coincident", 19, 2, 15, 1))
sketch12.addConstraint(Sketcher.Constraint("Vertical", 0))
sketch12.addConstraint(Sketcher.Constraint("Horizontal", 1))
sketch12.addConstraint(Sketcher.Constraint("Vertical", 3))
sketch12.addConstraint(Sketcher.Constraint("Horizontal", 4))
sketch12.addConstraint(Sketcher.Constraint("Horizontal", 6))
sketch12.addConstraint(Sketcher.Constraint("Vertical", 7))
sketch12.addConstraint(Sketcher.Constraint("Horizontal", 8))
sketch12.addConstraint(Sketcher.Constraint("Vertical", 9))
sketch12.addConstraint(Sketcher.Constraint("Vertical", 10))
sketch12.addConstraint(Sketcher.Constraint("Horizontal", 11))
sketch12.addConstraint(Sketcher.Constraint("Vertical", 13))
sketch12.addConstraint(Sketcher.Constraint("Horizontal", 14))
sketch12.addConstraint(Sketcher.Constraint("Horizontal", 16))
sketch12.addConstraint(Sketcher.Constraint("Vertical", 17))
sketch12.addConstraint(Sketcher.Constraint("Horizontal", 18))
sketch12.addConstraint(Sketcher.Constraint("Vertical", 19))
sketch12.addConstraint(Sketcher.Constraint("Symmetric", 0, 2, 10, 2, -1, 1))
sketch12.addConstraint(Sketcher.Constraint("Symmetric", 2, 2, 12, 2, -1, 1))
sketch12.addConstraint(Sketcher.Constraint("Symmetric", 5, 2, 15, 2, -1, 1))
sketch12.addConstraint(Sketcher.Constraint("Symmetric", 7, 2, 17, 2, -1, 1))
sketch12.addConstraint(Sketcher.Constraint("Symmetric", 9, 2, 19, 2, -1, 1))
sketch12.addConstraint(Sketcher.Constraint("Symmetric", 1, 2, 5, 2, -2))
sketch12.addConstraint(Sketcher.Constraint("Symmetric", 4, 2, 7, 2, -2))
sketch12.addConstraint(Sketcher.Constraint("Symmetric", 2, 2, 9, 2, -2))
sketch12.addConstraint(Sketcher.Constraint("Perpendicular", 2, 5))
sketch12.addConstraint(Sketcher.Constraint("Perpendicular", 5, 12))
sketch12.addConstraint(Sketcher.Constraint("Horizontal", 14, 2, 17, 2))
sketch12.addConstraint(Sketcher.Constraint("Equal", 18, 0))
sketch12.addConstraint(Sketcher.Constraint("DistanceX", 4, 2, 4, 1, Q("14 mm")))
sketch12.addConstraint(Sketcher.Constraint("Distance", 2, Q("12 mm")))
sketch12.addConstraint(Sketcher.Constraint("DistanceX", 0, 2, -1, 1, Q("36.2 mm")))
sketch12.addConstraint(Sketcher.Constraint("DistanceY", -1, 1, 0, 2, Q("33.7 mm")))
pad8 = body2.newObject("PartDesign::Pad", "Pad007")
pad8.Profile = sketch12
pad8.Length = 4

# Sketch on XY plane
sketch13 = body2.newObject("Sketcher::SketchObject", "Sketch012")
sketch13.AttachmentSupport = (doc.getObject("XY_Plane001"), [""])
sketch13.MapMode = "FlatFace"
sketch13.AttachmentOffset = App.Placement(App.Vector(0, 0, 20.5), App.Rotation())
sketch13.addGeometry(Part.Circle(App.Vector(-33, 44.5, 0), App.Vector(0, 0, 1), 1.4), False)
sketch13.addGeometry(Part.Circle(App.Vector(33, 44.5, 0), App.Vector(0, 0, 1), 1.4), False)
sketch13.addGeometry(Part.Circle(App.Vector(-33, -44.5, 0), App.Vector(0, 0, 1), 1.4), False)
sketch13.addGeometry(Part.Circle(App.Vector(33, -44.5, 0), App.Vector(0, 0, 1), 1.4), False)
sketch13.addConstraint(Sketcher.Constraint("Equal", 0, 1))
sketch13.addConstraint(Sketcher.Constraint("Equal", 1, 2))
sketch13.addConstraint(Sketcher.Constraint("Equal", 2, 3))
sketch13.addConstraint(Sketcher.Constraint("Symmetric", 1, 3, 2, 3, -1, 1))
sketch13.addConstraint(Sketcher.Constraint("Symmetric", 0, 3, 3, 3, -1, 1))
sketch13.addConstraint(Sketcher.Constraint("Symmetric", 0, 3, 1, 3, -2))
sketch13.addConstraint(Sketcher.Constraint("Diameter", 0, Q("2.8 mm")))
sketch13.addConstraint(Sketcher.Constraint("DistanceX", 0, 3, -1, 1, Q("33 mm")))
sketch13.addConstraint(Sketcher.Constraint("DistanceY", 2, 3, 0, 3, Q("89 mm")))
pad9 = body2.newObject("PartDesign::Pad", "Pad008")
pad9.Profile = sketch13
pad9.Length = 3

# Sketch on XY plane
sketch14 = body2.newObject("Sketcher::SketchObject", "Sketch013")
sketch14.AttachmentSupport = (doc.getObject("XY_Plane001"), [""])
sketch14.MapMode = "FlatFace"
sketch14.AttachmentOffset = App.Placement(App.Vector(0, 0, 15.5), App.Rotation())
sketch14.addGeometry(Part.LineSegment(App.Vector(29.2, 39.6, 0), App.Vector(25.8, 39.6, 0)), False)
sketch14.addGeometry(Part.LineSegment(App.Vector(25.8, 39.6, 0), App.Vector(24.2, 42.5, 0)), False)
sketch14.addGeometry(Part.LineSegment(App.Vector(24.2, 42.5, 0), App.Vector(25.8, 45.4, 0)), False)
sketch14.addGeometry(Part.LineSegment(App.Vector(25.8, 45.4, 0), App.Vector(29.2, 45.4, 0)), False)
sketch14.addGeometry(Part.LineSegment(App.Vector(29.2, 45.4, 0), App.Vector(30.8, 42.5, 0)), False)
sketch14.addGeometry(Part.LineSegment(App.Vector(30.8, 42.5, 0), App.Vector(29.2, 39.6, 0)), False)
sketch14.addGeometry(Part.LineSegment(App.Vector(-24.2, 42.5, 0), App.Vector(-25.8, 39.6, 0)), False)
sketch14.addGeometry(Part.LineSegment(App.Vector(-25.8, 39.6, 0), App.Vector(-29.2, 39.6, 0)), False)
sketch14.addGeometry(Part.LineSegment(App.Vector(-29.2, 39.6, 0), App.Vector(-30.8, 42.5, 0)), False)
sketch14.addGeometry(Part.LineSegment(App.Vector(-30.8, 42.5, 0), App.Vector(-29.2, 45.4, 0)), False)
sketch14.addGeometry(Part.LineSegment(App.Vector(-29.2, 45.4, 0), App.Vector(-25.8, 45.4, 0)), False)
sketch14.addGeometry(Part.LineSegment(App.Vector(-25.8, 45.4, 0), App.Vector(-24.2, 42.5, 0)), False)
sketch14.addGeometry(Part.LineSegment(App.Vector(-25.8, -45.4, 0), App.Vector(-29.2, -45.4, 0)), False)
sketch14.addGeometry(Part.LineSegment(App.Vector(-29.2, -45.4, 0), App.Vector(-30.8, -42.5, 0)), False)
sketch14.addGeometry(Part.LineSegment(App.Vector(-30.8, -42.5, 0), App.Vector(-29.2, -39.6, 0)), False)
sketch14.addGeometry(Part.LineSegment(App.Vector(-29.2, -39.6, 0), App.Vector(-25.8, -39.6, 0)), False)
sketch14.addGeometry(Part.LineSegment(App.Vector(-25.8, -39.6, 0), App.Vector(-24.2, -42.5, 0)), False)
sketch14.addGeometry(Part.LineSegment(App.Vector(-24.2, -42.5, 0), App.Vector(-25.8, -45.4, 0)), False)
sketch14.addGeometry(Part.LineSegment(App.Vector(30.8, -42.5, 0), App.Vector(29.2, -45.4, 0)), False)
sketch14.addGeometry(Part.LineSegment(App.Vector(29.2, -45.4, 0), App.Vector(25.8, -45.4, 0)), False)
sketch14.addGeometry(Part.LineSegment(App.Vector(25.8, -45.4, 0), App.Vector(24.2, -42.5, 0)), False)
sketch14.addGeometry(Part.LineSegment(App.Vector(24.2, -42.5, 0), App.Vector(25.8, -39.6, 0)), False)
sketch14.addGeometry(Part.LineSegment(App.Vector(25.8, -39.6, 0), App.Vector(29.2, -39.6, 0)), False)
sketch14.addGeometry(Part.LineSegment(App.Vector(29.2, -39.6, 0), App.Vector(30.8, -42.5, 0)), False)
sketch14.addConstraint(Sketcher.Constraint("Coincident", 0, 2, 1, 1))
sketch14.addConstraint(Sketcher.Constraint("Coincident", 1, 2, 2, 1))
sketch14.addConstraint(Sketcher.Constraint("Coincident", 2, 2, 3, 1))
sketch14.addConstraint(Sketcher.Constraint("Coincident", 3, 2, 4, 1))
sketch14.addConstraint(Sketcher.Constraint("Coincident", 4, 2, 5, 1))
sketch14.addConstraint(Sketcher.Constraint("Coincident", 5, 2, 0, 1))
sketch14.addConstraint(Sketcher.Constraint("Coincident", 6, 2, 7, 1))
sketch14.addConstraint(Sketcher.Constraint("Coincident", 7, 2, 8, 1))
sketch14.addConstraint(Sketcher.Constraint("Coincident", 8, 2, 9, 1))
sketch14.addConstraint(Sketcher.Constraint("Coincident", 9, 2, 10, 1))
sketch14.addConstraint(Sketcher.Constraint("Coincident", 10, 2, 11, 1))
sketch14.addConstraint(Sketcher.Constraint("Coincident", 11, 2, 6, 1))
sketch14.addConstraint(Sketcher.Constraint("Coincident", 12, 2, 13, 1))
sketch14.addConstraint(Sketcher.Constraint("Coincident", 13, 2, 14, 1))
sketch14.addConstraint(Sketcher.Constraint("Coincident", 14, 2, 15, 1))
sketch14.addConstraint(Sketcher.Constraint("Coincident", 15, 2, 16, 1))
sketch14.addConstraint(Sketcher.Constraint("Coincident", 16, 2, 17, 1))
sketch14.addConstraint(Sketcher.Constraint("Coincident", 17, 2, 12, 1))
sketch14.addConstraint(Sketcher.Constraint("Coincident", 18, 2, 19, 1))
sketch14.addConstraint(Sketcher.Constraint("Coincident", 19, 2, 20, 1))
sketch14.addConstraint(Sketcher.Constraint("Coincident", 20, 2, 21, 1))
sketch14.addConstraint(Sketcher.Constraint("Coincident", 21, 2, 22, 1))
sketch14.addConstraint(Sketcher.Constraint("Coincident", 22, 2, 23, 1))
sketch14.addConstraint(Sketcher.Constraint("Coincident", 23, 2, 18, 1))
sketch14.addConstraint(Sketcher.Constraint("Horizontal", 0))
sketch14.addConstraint(Sketcher.Constraint("Horizontal", 3))
sketch14.addConstraint(Sketcher.Constraint("Horizontal", 7))
sketch14.addConstraint(Sketcher.Constraint("Horizontal", 10))
sketch14.addConstraint(Sketcher.Constraint("Horizontal", 12))
sketch14.addConstraint(Sketcher.Constraint("Horizontal", 15))
sketch14.addConstraint(Sketcher.Constraint("Horizontal", 19))
sketch14.addConstraint(Sketcher.Constraint("Horizontal", 22))
sketch14.addConstraint(Sketcher.Constraint("Symmetric", 3, 2, 12, 2, -1, 1))
sketch14.addConstraint(Sketcher.Constraint("Symmetric", 4, 2, 13, 2, -1, 1))
sketch14.addConstraint(Sketcher.Constraint("Symmetric", 5, 2, 14, 2, -1, 1))
sketch14.addConstraint(Sketcher.Constraint("Symmetric", 1, 2, 16, 2, -1, 1))
sketch14.addConstraint(Sketcher.Constraint("Symmetric", 9, 2, 18, 2, -1, 1))
sketch14.addConstraint(Sketcher.Constraint("Symmetric", 11, 2, 20, 2, -1, 1))
sketch14.addConstraint(Sketcher.Constraint("Symmetric", 6, 2, 21, 2, -1, 1))
sketch14.addConstraint(Sketcher.Constraint("Symmetric", 8, 2, 23, 2, -1, 1))
sketch14.addConstraint(Sketcher.Constraint("Symmetric", 0, 2, 6, 2, -2))
sketch14.addConstraint(Sketcher.Constraint("Symmetric", 4, 2, 8, 2, -2))
sketch14.addConstraint(Sketcher.Constraint("Symmetric", 3, 2, 9, 2, -2))
sketch14.addConstraint(Sketcher.Constraint("Symmetric", 1, 2, 11, 2, -2))
sketch14.addConstraint(Sketcher.Constraint("Parallel", 1, 4))
sketch14.addConstraint(Sketcher.Constraint("Parallel", 2, 5))
sketch14.addConstraint(Sketcher.Constraint("Parallel", 5, 6))
sketch14.addConstraint(Sketcher.Constraint("Parallel", 4, 8))
sketch14.addConstraint(Sketcher.Constraint("Parallel", 8, 11))
sketch14.addConstraint(Sketcher.Constraint("Parallel", 13, 16))
sketch14.addConstraint(Sketcher.Constraint("Parallel", 14, 17))
sketch14.addConstraint(Sketcher.Constraint("Parallel", 16, 20))
sketch14.addConstraint(Sketcher.Constraint("Parallel", 20, 23))
sketch14.addConstraint(Sketcher.Constraint("Horizontal", 1, 2, 4, 2))
sketch14.addConstraint(Sketcher.Constraint("Vertical", 0, 2, 2, 2))
sketch14.addConstraint(Sketcher.Constraint("Angle", 1, Q("120 deg")))
sketch14.addConstraint(Sketcher.Constraint("DistanceX", 6, 2, 5, 2, Q("55 mm")))
sketch14.addConstraint(Sketcher.Constraint("DistanceY", 12, 2, 7, 2, Q("85 mm")))
sketch14.addConstraint(Sketcher.Constraint("DistanceY", -1, 1, 0, 2, Q("39.6 mm")))
sketch14.addConstraint(Sketcher.Constraint("DistanceX", 0, 2, 0, 1, Q("3.348632 mm")))
pocket5 = body2.newObject("PartDesign::Pocket", "Pocket004")
pocket5.Profile = sketch14
pocket5.Type = "ThroughAll"
pocket5.Reversed = True

# Sketch on XY plane
sketch15 = body2.newObject("Sketcher::SketchObject", "Sketch014")
sketch15.AttachmentSupport = (doc.getObject("XY_Plane001"), [""])
sketch15.MapMode = "FlatFace"
sketch15.AttachmentOffset = App.Placement(App.Vector(0, 0, 23.5), App.Rotation())
sketch15.addGeometry(Part.Circle(App.Vector(-33, 44.5, 0), App.Vector(0, 0, 1), 1.4), False)
sketch15.addGeometry(Part.Circle(App.Vector(33, -44.5, 0), App.Vector(0, 0, 1), 1.4), False)
sketch15.addConstraint(Sketcher.Constraint("Equal", 0, 1))
sketch15.addConstraint(Sketcher.Constraint("Symmetric", 0, 3, 1, 3, -1, 1))
sketch15.addConstraint(Sketcher.Constraint("Diameter", 0, Q("2.8 mm")))
sketch15.addConstraint(Sketcher.Constraint("DistanceX", 0, 3, -1, 1, Q("33 mm")))
sketch15.addConstraint(Sketcher.Constraint("DistanceY", 1, 3, 0, 3, Q("89 mm")))
pocket6 = body2.newObject("PartDesign::Pocket", "Pocket005")
pocket6.Profile = sketch15
pocket6.Type = "ThroughAll"

doc.recompute()
